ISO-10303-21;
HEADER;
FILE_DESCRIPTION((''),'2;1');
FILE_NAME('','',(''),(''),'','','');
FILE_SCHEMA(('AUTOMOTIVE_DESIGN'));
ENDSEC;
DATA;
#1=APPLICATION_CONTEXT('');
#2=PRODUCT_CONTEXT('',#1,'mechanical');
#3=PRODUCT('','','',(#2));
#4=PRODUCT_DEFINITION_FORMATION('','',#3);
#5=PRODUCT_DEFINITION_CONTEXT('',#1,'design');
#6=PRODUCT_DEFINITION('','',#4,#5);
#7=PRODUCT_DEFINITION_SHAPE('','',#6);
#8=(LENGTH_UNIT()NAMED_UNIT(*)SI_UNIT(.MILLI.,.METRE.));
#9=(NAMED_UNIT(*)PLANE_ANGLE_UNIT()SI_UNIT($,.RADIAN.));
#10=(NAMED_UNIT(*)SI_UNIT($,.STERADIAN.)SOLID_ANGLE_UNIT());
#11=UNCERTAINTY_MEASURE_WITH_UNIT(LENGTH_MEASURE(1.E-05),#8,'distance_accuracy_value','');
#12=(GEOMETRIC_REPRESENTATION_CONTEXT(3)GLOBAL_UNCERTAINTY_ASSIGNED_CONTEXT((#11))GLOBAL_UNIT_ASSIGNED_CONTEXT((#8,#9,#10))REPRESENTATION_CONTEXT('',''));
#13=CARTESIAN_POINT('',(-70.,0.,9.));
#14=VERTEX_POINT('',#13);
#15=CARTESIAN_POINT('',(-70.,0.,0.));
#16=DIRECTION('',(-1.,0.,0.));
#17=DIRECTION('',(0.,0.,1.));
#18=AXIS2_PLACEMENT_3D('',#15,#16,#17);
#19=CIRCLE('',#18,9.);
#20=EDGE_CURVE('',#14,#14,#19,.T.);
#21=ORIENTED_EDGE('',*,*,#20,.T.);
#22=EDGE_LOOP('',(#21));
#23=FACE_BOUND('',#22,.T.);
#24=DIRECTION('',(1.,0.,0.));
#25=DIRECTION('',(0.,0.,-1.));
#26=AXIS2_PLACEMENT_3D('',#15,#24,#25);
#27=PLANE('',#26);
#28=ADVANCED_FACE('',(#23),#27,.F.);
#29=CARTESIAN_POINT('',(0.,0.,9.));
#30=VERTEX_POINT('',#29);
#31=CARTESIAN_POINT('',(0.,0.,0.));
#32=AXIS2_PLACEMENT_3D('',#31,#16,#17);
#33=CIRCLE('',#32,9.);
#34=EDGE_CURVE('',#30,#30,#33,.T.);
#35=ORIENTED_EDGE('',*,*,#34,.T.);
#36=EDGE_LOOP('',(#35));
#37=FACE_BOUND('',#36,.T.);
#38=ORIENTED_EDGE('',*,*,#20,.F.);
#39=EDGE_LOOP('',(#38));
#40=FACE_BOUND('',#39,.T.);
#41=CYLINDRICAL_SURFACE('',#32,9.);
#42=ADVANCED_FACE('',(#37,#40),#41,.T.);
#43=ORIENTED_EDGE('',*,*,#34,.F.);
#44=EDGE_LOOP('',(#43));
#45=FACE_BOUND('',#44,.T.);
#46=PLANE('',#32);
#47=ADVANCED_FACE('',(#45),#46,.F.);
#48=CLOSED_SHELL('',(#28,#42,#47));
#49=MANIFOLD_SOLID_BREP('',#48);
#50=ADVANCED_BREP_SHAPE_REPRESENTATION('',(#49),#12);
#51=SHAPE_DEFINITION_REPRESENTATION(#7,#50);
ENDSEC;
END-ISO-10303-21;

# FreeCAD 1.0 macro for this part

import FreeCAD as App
import Part
import Sketcher

doc = App.newDocument("Part")
body = doc.addObject("PartDesign::Body", "Body")

sketch1 = body.newObject("Sketcher::SketchObject", "Sketch")
sketch1.AttachmentSupport = (doc.getObject("XY_Plane"), [""])
sketch1.MapMode = "FlatFace"
sketch1.addGeometry([
    Part.LineSegment(App.Vector(-70, 9, 0), App.Vector(-70, 0, 0)),
    Part.LineSegment(App.Vector(-70, 0, 0), App.Vector(0, 0, 0)),
    Part.LineSegment(App.Vector(0, 0, 0), App.Vector(0, 9, 0)),
    Part.LineSegment(App.Vector(0, 9, 0), App.Vector(-70, 9, 0)),
], False)
sketch1.addConstraint([
    Sketcher.Constraint("Coincident", 0, 2, 1, 1),
    Sketcher.Constraint("Coincident", 1, 2, 2, 1),
    Sketcher.Constraint("Coincident", 2, 2, 3, 1),
    Sketcher.Constraint("Coincident", 3, 2, 0, 1),
    Sketcher.Constraint("Vertical", 0),
    Sketcher.Constraint("Horizontal", 1),
    Sketcher.Constraint("Vertical", 2),
    Sketcher.Constraint("Horizontal", 3),
    Sketcher.Constraint("Coincident", 1, 2, -1, 1),
    Sketcher.Constraint("DistanceX", 1, 1, 1, 2, 70.0),
    Sketcher.Constraint("DistanceY", 0, 2, 0, 1, 9.0),
])
revolution = body.newObject("PartDesign::Revolution", "Revolution")
revolution.Profile = sketch1
revolution.ReferenceAxis = (sketch1, ["H_Axis"])
revolution.Angle = 360

doc.recompute()
